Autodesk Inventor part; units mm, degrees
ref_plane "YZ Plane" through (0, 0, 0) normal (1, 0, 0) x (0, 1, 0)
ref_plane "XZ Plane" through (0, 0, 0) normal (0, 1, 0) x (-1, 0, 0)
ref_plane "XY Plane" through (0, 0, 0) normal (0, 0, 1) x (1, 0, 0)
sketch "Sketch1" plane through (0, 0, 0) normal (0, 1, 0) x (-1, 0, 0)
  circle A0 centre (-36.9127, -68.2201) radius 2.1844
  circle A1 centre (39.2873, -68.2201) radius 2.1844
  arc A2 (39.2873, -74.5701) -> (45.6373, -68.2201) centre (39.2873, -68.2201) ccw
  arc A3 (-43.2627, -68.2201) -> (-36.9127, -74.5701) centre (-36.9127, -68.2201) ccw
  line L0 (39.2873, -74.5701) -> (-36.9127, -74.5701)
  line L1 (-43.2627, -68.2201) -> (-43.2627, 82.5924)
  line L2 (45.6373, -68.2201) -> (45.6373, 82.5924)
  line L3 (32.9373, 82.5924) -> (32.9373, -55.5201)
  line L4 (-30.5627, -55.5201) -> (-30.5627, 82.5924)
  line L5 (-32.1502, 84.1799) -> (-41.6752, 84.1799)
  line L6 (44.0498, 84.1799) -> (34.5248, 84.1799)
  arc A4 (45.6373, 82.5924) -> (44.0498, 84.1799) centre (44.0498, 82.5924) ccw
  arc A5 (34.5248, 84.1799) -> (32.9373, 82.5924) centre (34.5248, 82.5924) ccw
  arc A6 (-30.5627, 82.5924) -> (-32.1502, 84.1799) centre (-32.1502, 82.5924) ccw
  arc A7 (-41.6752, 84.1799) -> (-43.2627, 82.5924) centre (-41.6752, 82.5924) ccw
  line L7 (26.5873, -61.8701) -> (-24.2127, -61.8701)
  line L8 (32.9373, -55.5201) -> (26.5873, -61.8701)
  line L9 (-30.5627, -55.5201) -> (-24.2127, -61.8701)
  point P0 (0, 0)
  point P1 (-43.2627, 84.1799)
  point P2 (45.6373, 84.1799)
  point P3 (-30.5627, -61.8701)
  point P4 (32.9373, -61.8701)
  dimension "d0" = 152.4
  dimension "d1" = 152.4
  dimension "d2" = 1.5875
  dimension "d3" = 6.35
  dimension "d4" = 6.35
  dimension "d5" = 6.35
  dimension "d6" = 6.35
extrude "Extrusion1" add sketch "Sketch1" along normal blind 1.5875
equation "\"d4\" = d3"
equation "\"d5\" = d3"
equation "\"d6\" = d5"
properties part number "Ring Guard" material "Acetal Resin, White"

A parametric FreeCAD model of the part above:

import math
import FreeCAD as App
import Part
import Sketcher
Q = App.Units.Quantity

doc = App.newDocument("Part")
body = doc.addObject("PartDesign::Body", "Body")

# Sketch on XZ plane
sketch1 = body.newObject("Sketcher::SketchObject", "Sketch")
sketch1.AttachmentSupport = (doc.getObject("XZ_Plane"), [""])
sketch1.MapMode = "FlatFace"
sketch1.addGeometry([
    Part.LineSegment(App.Vector(36.9, -74.6, 0), App.Vector(-39.3, -74.6, 0)),  # 0
    Part.ArcOfCircle(Part.Circle(App.Vector(-39.3, -68.2, 0), App.Vector(0, 0, 1), 6.3), math.radians(180), math.radians(270)),  # 1
    Part.LineSegment(App.Vector(-45.6, -68.2, 0), App.Vector(-45.6, 82.6, 0)),  # 2
    Part.ArcOfCircle(Part.Circle(App.Vector(-44, 82.6, 0), App.Vector(0, 0, 1), 1.6), math.radians(90), math.radians(180)),  # 3
    Part.LineSegment(App.Vector(-44, 84.2, 0), App.Vector(-34.5, 84.2, 0)),  # 4
    Part.ArcOfCircle(Part.Circle(App.Vector(-34.5, 82.6, 0), App.Vector(0, 0, 1), 1.6), math.radians(0), math.radians(90)),  # 5
    Part.LineSegment(App.Vector(-32.9, 82.6, 0), App.Vector(-32.9, -55.5, 0)),  # 6
    Part.LineSegment(App.Vector(-32.9, -55.5, 0), App.Vector(-26.6, -61.9, 0)),  # 7
    Part.LineSegment(App.Vector(-26.6, -61.9, 0), App.Vector(24.2, -61.9, 0)),  # 8
    Part.LineSegment(App.Vector(24.2, -61.9, 0), App.Vector(30.6, -55.5, 0)),  # 9
    Part.LineSegment(App.Vector(30.6, -55.5, 0), App.Vector(30.6, 82.6, 0)),  # 10
    Part.ArcOfCircle(Part.Circle(App.Vector(32.2, 82.6, 0), App.Vector(0, 0, 1), 1.6), math.radians(90), math.radians(180)),  # 11
    Part.LineSegment(App.Vector(32.2, 84.2, 0), App.Vector(41.7, 84.2, 0)),  # 12
    Part.ArcOfCircle(Part.Circle(App.Vector(41.7, 82.6, 0), App.Vector(0, 0, 1), 1.6), math.radians(0), math.radians(90)),  # 13
    Part.LineSegment(App.Vector(43.3, 82.6, 0), App.Vector(43.3, -68.2, 0)),  # 14
    Part.ArcOfCircle(Part.Circle(App.Vector(36.9, -68.2, 0), App.Vector(0, 0, 1), 6.4), math.radians(-90), math.radians(0)),  # 15
    Part.Circle(App.Vector(36.9, -68.2, 0), App.Vector(0, 0, 1), 2.2),  # 16
    Part.Circle(App.Vector(-39.3, -68.2, 0), App.Vector(0, 0, 1), 2.2),  # 17
], False)
sketch1.addConstraint([
    Sketcher.Constraint("Tangent", 0, 2, 1, 2),
    Sketcher.Constraint("Tangent", 1, 1, 2, 1),
    Sketcher.Constraint("Tangent", 2, 2, 3, 2),
    Sketcher.Constraint("Tangent", 3, 1, 4, 1),
    Sketcher.Constraint("Tangent", 4, 2, 5, 2),
    Sketcher.Constraint("Tangent", 5, 1, 6, 1),
    Sketcher.Constraint("Coincident", 6, 2, 7, 1),
    Sketcher.Constraint("Coincident", 7, 2, 8, 1),
    Sketcher.Constraint("Coincident", 8, 2, 9, 1),
    Sketcher.Constraint("Coincident", 9, 2, 10, 1),
    Sketcher.Constraint("Tangent", 10, 2, 11, 2),
    Sketcher.Constraint("Tangent", 11, 1, 12, 1),
    Sketcher.Constraint("Tangent", 12, 2, 13, 2),
    Sketcher.Constraint("Tangent", 13, 1, 14, 1),
    Sketcher.Constraint("Tangent", 14, 2, 15, 2),
    Sketcher.Constraint("Tangent", 15, 1, 0, 1),
    Sketcher.Constraint("Horizontal", 0),
    Sketcher.Constraint("Vertical", 2),
    Sketcher.Constraint("Horizontal", 4),
    Sketcher.Constraint("Vertical", 6),
    Sketcher.Constraint("Horizontal", 8),
    Sketcher.Constraint("Vertical", 10),
    Sketcher.Constraint("Horizontal", 12),
    Sketcher.Constraint("Vertical", 14),
    Sketcher.Constraint("Coincident", 16, 3, 15, 3),
    Sketcher.Constraint("Coincident", 17, 3, 1, 3),
    Sketcher.Constraint("Equal", 3, 5),
    Sketcher.Constraint("Equal", 5, 11),
    Sketcher.Constraint("Equal", 11, 13),
    Sketcher.Constraint("Equal", 1, 15),
    Sketcher.Constraint("Equal", 16, 17),
    Sketcher.Constraint("Perpendicular", 7, 9),
    Sketcher.Constraint("Horizontal", 5, 3, 11, 3),
    Sketcher.Constraint("Horizontal", 6, 2, 9, 2),
    Sketcher.Constraint("Equal", 4, 12),
    Sketcher.Constraint("Equal", 7, 9),
    Sketcher.Constraint("Radius", 1, Q("0.25 in")),
    Sketcher.Constraint("Radius", 3, Q("0.0625 in")),
    Sketcher.Constraint("DistanceX", 0, 2, 0, 1, Q("3 in")),
    Sketcher.Constraint("DistanceX", 8, 1, 8, 2, Q("2 in")),
    Sketcher.Constraint("DistanceX", 1, 3, 6, 2, Q("0.25 in")),
    Sketcher.Constraint("DistanceY", 1, 3, 7, 2, Q("0.25 in")),
    Sketcher.Constraint("Diameter", 16, Q("0.172 in")),
    Sketcher.Constraint("DistanceY", 2, 1, 2, 2, Q("5.9375 in")),
    Sketcher.Constraint("DistanceX", 1, 3, -1, 1, 39.2873),
    Sketcher.Constraint("DistanceY", 1, 3, -1, 1, 68.22),
])
pad1 = body.newObject("PartDesign::Pad", "Pad")
pad1.Profile = sketch1
pad1.Length = Q("0.0625 in")
pad1.Reversed = True

doc.recompute()
